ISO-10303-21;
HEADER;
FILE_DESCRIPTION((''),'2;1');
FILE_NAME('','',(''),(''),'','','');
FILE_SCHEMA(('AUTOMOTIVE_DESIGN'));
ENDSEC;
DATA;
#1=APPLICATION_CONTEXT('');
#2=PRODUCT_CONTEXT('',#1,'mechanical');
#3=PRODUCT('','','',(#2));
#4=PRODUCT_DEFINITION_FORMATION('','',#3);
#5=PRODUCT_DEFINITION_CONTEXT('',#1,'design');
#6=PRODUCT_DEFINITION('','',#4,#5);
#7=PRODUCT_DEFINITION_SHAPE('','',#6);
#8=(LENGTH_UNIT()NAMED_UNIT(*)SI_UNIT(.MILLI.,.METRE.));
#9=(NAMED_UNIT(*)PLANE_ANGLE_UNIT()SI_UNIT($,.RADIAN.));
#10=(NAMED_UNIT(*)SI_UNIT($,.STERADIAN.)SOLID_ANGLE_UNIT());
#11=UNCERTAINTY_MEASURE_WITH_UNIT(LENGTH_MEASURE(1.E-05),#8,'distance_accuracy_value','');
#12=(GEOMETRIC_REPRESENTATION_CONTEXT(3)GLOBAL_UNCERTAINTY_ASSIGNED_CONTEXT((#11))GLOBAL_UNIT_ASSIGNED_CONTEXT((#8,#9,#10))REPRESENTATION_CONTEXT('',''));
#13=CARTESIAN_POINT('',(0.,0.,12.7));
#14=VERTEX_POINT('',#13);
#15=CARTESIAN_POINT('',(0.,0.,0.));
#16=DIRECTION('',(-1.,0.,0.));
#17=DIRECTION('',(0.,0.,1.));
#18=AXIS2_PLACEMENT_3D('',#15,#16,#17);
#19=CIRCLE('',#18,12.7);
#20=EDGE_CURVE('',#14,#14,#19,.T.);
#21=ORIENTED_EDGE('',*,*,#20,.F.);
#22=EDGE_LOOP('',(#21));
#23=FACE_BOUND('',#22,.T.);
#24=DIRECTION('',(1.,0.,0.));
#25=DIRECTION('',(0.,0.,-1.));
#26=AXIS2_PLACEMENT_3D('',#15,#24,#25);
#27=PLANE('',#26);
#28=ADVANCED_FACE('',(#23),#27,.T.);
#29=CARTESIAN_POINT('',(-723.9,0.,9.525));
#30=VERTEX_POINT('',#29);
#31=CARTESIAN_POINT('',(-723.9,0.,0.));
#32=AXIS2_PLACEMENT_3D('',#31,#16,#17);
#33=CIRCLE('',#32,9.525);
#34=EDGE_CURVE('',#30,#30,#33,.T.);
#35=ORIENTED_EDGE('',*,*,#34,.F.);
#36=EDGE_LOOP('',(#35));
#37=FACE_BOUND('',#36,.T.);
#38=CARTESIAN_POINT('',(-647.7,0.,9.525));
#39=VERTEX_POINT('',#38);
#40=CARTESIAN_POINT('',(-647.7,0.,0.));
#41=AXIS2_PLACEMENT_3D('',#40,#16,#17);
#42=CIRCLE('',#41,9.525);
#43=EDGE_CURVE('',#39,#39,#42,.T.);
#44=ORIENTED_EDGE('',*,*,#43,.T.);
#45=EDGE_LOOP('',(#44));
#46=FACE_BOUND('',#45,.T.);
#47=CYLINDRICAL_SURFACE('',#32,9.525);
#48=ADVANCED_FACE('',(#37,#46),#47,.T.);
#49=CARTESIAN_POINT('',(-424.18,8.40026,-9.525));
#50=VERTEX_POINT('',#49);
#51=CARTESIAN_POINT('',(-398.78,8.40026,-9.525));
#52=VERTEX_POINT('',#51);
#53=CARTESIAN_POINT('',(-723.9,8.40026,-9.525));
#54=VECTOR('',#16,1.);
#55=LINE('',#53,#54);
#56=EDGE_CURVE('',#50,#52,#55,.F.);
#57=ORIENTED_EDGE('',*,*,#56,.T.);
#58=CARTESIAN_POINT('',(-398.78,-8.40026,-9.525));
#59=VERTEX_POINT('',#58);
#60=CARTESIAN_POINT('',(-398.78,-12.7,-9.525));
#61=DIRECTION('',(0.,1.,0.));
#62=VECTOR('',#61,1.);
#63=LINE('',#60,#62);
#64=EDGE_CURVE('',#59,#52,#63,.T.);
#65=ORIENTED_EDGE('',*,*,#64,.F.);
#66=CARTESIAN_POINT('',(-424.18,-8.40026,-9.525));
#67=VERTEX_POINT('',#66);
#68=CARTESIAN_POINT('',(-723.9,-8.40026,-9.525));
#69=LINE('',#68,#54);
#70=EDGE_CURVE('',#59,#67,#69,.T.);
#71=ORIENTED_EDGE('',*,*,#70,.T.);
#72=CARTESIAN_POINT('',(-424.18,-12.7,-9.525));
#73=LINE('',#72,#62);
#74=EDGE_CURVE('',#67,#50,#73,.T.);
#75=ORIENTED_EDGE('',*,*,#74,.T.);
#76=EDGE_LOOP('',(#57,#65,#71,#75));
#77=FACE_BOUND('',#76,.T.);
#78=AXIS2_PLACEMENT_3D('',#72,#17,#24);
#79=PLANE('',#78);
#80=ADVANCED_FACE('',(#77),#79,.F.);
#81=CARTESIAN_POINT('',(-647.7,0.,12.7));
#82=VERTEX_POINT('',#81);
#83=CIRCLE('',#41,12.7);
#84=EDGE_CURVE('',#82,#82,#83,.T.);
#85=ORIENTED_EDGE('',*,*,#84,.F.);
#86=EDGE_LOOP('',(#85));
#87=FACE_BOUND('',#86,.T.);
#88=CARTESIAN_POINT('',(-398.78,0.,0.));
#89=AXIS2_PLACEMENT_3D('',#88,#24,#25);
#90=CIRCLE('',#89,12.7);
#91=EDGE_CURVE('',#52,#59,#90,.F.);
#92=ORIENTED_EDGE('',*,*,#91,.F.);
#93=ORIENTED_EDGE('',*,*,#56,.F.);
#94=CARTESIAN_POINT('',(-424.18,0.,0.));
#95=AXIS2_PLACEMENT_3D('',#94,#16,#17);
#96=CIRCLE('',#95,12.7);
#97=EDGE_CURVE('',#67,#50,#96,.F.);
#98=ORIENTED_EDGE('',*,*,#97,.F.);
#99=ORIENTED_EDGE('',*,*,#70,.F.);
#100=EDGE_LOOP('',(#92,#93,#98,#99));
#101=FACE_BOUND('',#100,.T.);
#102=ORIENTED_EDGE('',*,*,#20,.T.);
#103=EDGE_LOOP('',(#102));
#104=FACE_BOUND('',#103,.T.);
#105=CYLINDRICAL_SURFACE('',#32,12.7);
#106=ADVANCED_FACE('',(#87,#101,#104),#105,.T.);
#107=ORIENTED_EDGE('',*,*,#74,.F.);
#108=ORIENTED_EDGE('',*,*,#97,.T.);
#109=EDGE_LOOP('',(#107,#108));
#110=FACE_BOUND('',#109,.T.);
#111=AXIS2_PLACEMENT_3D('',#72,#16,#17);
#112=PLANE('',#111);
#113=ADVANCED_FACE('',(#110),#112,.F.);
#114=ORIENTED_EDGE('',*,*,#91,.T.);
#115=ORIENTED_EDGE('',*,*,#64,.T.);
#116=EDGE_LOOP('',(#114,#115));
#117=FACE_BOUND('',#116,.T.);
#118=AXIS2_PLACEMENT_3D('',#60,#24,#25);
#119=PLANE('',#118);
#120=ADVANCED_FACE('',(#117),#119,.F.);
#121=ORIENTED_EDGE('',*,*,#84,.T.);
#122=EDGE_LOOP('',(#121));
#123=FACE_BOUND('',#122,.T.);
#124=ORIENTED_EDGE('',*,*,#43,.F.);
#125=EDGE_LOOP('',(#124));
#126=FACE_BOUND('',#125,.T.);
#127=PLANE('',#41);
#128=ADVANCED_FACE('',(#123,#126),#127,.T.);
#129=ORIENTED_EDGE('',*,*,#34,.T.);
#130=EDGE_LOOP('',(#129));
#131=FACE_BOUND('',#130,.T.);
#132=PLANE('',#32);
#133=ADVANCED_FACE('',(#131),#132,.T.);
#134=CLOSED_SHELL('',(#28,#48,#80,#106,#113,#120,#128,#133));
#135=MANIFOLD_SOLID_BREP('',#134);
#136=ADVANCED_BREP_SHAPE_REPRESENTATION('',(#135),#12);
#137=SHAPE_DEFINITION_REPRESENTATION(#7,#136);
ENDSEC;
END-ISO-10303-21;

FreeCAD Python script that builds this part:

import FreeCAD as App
import Part
import Sketcher
from FreeCAD import Vector
Q = App.Units.Quantity


def add_polygon(sketch, points):
    """Adds a closed chain of lines whose ends are joined by coincident constraints."""
    first, n = sketch.GeometryCount, len(points)
    for a, b in zip(points, points[1:] + points[:1]):
        sketch.addGeometry(Part.LineSegment(App.Vector(*a, 0), App.Vector(*b, 0)), False)
    for i in range(n):
        sketch.addConstraint(Sketcher.Constraint("Coincident", first + i, 2, first + (i + 1) % n, 1))

doc = App.newDocument("Part")
body = doc.addObject("PartDesign::Body", "Body")

sketch1 = body.newObject("Sketcher::SketchObject", "Sketch")
sketch1.AttachmentSupport = (doc.getObject("XZ_Plane"), [""])
sketch1.MapMode = "FlatFace"
add_polygon(sketch1, [(-723.9, -9.525), (-723.9, 0), (0, 0), (0, -12.7), (-647.7, -12.7), (-647.7, -9.525)])
sketch1.addConstraint([
    Sketcher.Constraint("Vertical", 0),
    Sketcher.Constraint("Horizontal", 1),
    Sketcher.Constraint("Vertical", 2),
    Sketcher.Constraint("Horizontal", 3),
    Sketcher.Constraint("Vertical", 4),
    Sketcher.Constraint("Horizontal", 5),
    Sketcher.Constraint("Coincident", 1, 2, -1, 1),
    Sketcher.Constraint("DistanceX", 5, 2, 5, 1, Q("3 in")),
    Sketcher.Constraint("DistanceX", 1, 1, 1, 2, Q("28.5 in")),
    Sketcher.Constraint("DistanceY", 2, 2, 2, 1, Q("0.5 in")),
    Sketcher.Constraint("DistanceY", 0, 1, 0, 2, Q("0.375 in")),
])
revolution = body.newObject("PartDesign::Revolution", "Revolution")
revolution.Profile = sketch1
revolution.ReferenceAxis = (sketch1, ["H_Axis"])
revolution.Angle = 360

sketch2 = body.newObject("Sketcher::SketchObject", "Sketch001")
sketch2.AttachmentSupport = (doc.getObject("XZ_Plane"), [""])
sketch2.MapMode = "FlatFace"
add_polygon(sketch2, [(-424.18, -12.7), (-424.18, -9.525), (-398.78, -9.525), (-398.78, -12.7)])
sketch2.addConstraint([
    Sketcher.Constraint("Vertical", 0),
    Sketcher.Constraint("Horizontal", 1),
    Sketcher.Constraint("Vertical", 2),
    Sketcher.Constraint("Horizontal", 3),
    Sketcher.Constraint("DistanceX", 1, 1, 1, 2, Q("1 in")),
    Sketcher.Constraint("DistanceX", 0, 2, -1, 1, Q("16.7 in")),
    Sketcher.Constraint("DistanceY", 2, 2, -1, 1, Q("0.5 in")),
    Sketcher.Constraint("DistanceY", 0, 1, 0, 2, Q("0.125 in")),
])
pocket1 = body.newObject("PartDesign::Pocket", "Pocket")
pocket1.Profile = sketch2
pocket1.Type = "ThroughAll"
pocket1.Midplane = True

doc.recompute()
